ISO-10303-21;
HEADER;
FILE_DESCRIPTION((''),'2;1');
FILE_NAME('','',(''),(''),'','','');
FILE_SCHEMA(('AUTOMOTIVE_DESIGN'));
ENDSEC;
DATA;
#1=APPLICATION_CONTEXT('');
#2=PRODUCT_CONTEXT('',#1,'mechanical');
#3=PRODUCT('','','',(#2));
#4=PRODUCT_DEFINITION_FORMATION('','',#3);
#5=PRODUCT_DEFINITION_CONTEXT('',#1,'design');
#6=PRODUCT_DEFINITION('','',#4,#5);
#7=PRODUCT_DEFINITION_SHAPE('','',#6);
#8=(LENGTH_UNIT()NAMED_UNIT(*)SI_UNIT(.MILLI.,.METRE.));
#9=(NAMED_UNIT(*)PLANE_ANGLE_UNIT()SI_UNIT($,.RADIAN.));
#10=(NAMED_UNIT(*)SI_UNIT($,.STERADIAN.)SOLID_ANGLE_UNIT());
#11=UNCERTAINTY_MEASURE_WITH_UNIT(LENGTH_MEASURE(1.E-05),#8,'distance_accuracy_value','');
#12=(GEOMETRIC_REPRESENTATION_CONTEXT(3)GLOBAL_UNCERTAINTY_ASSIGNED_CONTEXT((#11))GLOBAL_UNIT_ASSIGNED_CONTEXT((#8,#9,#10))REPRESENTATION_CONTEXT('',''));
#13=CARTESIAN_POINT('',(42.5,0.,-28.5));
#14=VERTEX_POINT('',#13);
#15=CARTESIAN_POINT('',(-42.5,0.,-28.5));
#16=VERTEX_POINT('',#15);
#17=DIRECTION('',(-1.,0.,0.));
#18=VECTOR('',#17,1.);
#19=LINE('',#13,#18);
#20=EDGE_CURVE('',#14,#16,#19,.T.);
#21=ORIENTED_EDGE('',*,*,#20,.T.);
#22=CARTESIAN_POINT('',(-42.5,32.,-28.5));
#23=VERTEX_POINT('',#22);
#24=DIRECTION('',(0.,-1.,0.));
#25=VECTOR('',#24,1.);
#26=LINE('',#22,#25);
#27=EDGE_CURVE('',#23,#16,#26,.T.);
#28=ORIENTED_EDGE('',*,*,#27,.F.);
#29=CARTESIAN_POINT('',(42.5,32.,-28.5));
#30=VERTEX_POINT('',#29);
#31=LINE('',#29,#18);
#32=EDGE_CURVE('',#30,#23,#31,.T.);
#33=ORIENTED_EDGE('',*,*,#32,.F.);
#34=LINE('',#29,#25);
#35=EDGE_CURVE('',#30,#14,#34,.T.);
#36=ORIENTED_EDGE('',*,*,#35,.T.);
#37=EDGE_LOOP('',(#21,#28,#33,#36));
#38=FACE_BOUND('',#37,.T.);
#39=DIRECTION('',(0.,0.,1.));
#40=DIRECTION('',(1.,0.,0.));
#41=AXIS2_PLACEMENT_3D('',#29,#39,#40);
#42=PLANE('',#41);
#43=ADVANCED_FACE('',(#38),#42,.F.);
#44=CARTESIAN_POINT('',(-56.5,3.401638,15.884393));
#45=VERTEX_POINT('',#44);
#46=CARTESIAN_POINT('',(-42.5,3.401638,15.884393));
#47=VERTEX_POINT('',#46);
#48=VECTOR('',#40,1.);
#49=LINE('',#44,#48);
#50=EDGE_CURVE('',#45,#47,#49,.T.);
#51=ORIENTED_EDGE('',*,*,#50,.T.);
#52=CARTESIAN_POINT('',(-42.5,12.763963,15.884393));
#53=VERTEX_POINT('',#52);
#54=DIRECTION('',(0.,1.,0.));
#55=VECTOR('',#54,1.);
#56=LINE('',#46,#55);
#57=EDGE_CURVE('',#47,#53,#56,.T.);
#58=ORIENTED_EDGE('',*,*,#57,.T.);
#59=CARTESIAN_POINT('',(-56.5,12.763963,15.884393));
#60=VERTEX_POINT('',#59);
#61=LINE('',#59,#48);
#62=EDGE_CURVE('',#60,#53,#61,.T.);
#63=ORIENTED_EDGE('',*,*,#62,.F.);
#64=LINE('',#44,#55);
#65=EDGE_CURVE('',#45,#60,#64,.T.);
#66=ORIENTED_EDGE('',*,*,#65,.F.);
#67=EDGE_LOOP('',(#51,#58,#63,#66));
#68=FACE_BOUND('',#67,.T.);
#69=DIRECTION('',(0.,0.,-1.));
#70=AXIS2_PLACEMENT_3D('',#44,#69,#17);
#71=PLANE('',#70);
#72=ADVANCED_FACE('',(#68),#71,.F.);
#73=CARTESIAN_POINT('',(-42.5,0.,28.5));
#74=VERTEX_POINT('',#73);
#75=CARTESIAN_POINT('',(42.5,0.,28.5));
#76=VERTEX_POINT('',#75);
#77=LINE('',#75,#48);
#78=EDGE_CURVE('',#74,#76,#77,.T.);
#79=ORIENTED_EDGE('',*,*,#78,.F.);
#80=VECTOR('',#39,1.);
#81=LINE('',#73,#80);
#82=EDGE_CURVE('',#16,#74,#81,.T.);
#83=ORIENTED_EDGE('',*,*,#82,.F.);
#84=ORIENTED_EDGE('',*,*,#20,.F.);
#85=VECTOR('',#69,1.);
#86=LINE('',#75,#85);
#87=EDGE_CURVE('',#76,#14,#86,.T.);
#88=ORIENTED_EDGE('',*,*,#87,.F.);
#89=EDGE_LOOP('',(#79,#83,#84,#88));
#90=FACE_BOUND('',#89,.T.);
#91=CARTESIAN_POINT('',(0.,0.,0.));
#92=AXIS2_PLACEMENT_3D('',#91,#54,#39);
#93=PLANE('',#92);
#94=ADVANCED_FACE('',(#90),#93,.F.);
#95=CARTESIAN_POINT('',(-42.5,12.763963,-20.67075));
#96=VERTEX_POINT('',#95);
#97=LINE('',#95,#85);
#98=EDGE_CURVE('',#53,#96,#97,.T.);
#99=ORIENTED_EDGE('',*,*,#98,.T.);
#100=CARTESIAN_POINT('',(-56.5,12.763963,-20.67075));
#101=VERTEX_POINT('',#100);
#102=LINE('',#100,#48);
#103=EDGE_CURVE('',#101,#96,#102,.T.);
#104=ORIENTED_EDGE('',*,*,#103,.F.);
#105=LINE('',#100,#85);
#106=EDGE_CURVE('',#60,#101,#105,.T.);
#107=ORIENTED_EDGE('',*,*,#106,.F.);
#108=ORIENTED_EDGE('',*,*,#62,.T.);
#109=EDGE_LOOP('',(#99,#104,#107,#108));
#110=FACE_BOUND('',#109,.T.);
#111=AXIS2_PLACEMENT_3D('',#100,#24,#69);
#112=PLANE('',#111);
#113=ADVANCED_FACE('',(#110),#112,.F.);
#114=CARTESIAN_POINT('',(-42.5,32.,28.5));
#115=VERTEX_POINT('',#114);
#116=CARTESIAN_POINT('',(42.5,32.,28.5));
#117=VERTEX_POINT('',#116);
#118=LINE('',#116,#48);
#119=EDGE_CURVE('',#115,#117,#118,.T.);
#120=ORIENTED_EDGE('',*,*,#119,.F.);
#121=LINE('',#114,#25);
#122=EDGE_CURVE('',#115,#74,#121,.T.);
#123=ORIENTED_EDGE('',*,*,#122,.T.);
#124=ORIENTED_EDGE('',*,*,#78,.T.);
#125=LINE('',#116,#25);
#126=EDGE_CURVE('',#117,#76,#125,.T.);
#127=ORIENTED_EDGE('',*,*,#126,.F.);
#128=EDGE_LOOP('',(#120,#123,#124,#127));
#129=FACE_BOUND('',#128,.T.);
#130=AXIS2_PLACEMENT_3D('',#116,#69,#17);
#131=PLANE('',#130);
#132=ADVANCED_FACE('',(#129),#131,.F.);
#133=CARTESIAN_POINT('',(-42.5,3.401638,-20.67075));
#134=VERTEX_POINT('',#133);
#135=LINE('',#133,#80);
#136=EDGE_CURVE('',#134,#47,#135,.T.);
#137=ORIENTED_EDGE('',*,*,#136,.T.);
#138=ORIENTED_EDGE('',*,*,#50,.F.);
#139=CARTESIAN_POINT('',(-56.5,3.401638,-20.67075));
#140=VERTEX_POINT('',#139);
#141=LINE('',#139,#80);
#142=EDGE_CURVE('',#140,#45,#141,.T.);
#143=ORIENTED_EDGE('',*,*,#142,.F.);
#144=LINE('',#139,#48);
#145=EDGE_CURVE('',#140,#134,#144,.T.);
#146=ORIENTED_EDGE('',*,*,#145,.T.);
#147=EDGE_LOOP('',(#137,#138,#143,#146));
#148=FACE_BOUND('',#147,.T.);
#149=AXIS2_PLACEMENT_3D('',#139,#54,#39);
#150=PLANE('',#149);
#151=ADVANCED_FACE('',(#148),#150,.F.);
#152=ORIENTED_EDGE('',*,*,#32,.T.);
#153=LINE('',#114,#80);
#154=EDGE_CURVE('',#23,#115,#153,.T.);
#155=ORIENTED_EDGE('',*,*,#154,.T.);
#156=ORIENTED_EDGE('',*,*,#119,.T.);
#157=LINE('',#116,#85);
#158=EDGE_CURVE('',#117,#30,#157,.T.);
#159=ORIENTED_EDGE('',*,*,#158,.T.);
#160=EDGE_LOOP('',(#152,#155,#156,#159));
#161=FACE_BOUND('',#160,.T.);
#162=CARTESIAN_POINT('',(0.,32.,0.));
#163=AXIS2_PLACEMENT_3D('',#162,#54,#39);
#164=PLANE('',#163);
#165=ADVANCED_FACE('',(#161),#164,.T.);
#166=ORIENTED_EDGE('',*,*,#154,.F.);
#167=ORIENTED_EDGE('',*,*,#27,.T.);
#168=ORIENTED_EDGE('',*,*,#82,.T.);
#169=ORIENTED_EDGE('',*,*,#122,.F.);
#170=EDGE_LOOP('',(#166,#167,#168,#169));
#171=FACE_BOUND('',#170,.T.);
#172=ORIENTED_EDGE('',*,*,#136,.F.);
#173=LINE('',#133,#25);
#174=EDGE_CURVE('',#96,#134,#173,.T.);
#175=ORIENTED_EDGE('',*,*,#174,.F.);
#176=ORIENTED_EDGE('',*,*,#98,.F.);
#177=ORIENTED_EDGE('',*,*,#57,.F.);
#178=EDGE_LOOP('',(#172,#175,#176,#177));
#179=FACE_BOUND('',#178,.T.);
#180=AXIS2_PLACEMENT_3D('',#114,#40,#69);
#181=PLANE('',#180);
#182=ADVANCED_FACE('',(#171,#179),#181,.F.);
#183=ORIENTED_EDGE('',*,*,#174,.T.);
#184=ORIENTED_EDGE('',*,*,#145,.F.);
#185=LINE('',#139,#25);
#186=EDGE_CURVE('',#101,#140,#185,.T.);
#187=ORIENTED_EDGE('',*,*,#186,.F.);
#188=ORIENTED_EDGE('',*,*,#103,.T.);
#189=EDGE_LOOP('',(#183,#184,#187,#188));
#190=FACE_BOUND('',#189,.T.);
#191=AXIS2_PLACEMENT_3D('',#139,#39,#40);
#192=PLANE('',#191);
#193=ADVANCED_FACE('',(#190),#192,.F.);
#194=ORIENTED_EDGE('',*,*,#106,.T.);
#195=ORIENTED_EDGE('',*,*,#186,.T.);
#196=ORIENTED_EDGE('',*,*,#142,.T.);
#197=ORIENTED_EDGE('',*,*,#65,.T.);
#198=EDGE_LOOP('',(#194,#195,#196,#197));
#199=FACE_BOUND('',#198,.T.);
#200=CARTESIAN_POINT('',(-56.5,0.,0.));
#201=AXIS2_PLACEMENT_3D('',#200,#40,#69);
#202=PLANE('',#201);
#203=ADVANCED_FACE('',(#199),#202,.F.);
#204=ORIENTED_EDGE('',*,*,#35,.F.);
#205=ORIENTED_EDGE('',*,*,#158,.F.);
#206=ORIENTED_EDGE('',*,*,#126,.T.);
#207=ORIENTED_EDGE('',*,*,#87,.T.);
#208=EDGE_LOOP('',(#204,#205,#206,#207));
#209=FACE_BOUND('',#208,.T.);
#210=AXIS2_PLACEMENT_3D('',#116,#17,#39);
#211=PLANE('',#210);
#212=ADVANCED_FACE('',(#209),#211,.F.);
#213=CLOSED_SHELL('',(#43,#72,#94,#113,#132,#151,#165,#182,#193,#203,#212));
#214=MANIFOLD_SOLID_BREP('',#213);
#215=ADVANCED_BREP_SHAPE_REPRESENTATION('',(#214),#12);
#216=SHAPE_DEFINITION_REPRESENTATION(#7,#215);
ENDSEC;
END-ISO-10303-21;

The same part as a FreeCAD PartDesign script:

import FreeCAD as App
import Part
import Sketcher
Q = App.Units.Quantity

doc = App.newDocument("Part")
body = doc.addObject("PartDesign::Body", "Body")

# Sketch on XZ plane
sketch1 = body.newObject("Sketcher::SketchObject", "Sketch")
sketch1.AttachmentSupport = (doc.getObject("XZ_Plane"), [""])
sketch1.MapMode = "FlatFace"
sketch1.addGeometry(Part.LineSegment(App.Vector(-42, -28, 0), App.Vector(-42, 28, 0)), False)
sketch1.addGeometry(Part.LineSegment(App.Vector(-42, 28, 0), App.Vector(42, 28, 0)), False)
sketch1.addGeometry(Part.LineSegment(App.Vector(42, 28, 0), App.Vector(42, -28, 0)), False)
sketch1.addGeometry(Part.LineSegment(App.Vector(42, -28, 0), App.Vector(-42, -28, 0)), False)
sketch1.addConstraint(Sketcher.Constraint("Coincident", 0, 2, 1, 1))
sketch1.addConstraint(Sketcher.Constraint("Coincident", 1, 2, 2, 1))
sketch1.addConstraint(Sketcher.Constraint("Coincident", 2, 2, 3, 1))
sketch1.addConstraint(Sketcher.Constraint("Coincident", 3, 2, 0, 1))
sketch1.addConstraint(Sketcher.Constraint("Vertical", 0))
sketch1.addConstraint(Sketcher.Constraint("Horizontal", 1))
sketch1.addConstraint(Sketcher.Constraint("Vertical", 2))
sketch1.addConstraint(Sketcher.Constraint("Horizontal", 3))
sketch1.addConstraint(Sketcher.Constraint("Symmetric", 0, 2, 2, 2, -1, 1))
sketch1.addConstraint(Sketcher.Constraint("DistanceX", 1, 1, 1, 2, Q("85 mm")))
sketch1.addConstraint(Sketcher.Constraint("DistanceY", 0, 1, 0, 2, Q("57 mm")))
pad1 = body.newObject("PartDesign::Pad", "Pad")
pad1.Profile = sketch1
pad1.Length = 32
pad1.Reversed = True

# Sketch on YZ plane
sketch2 = body.newObject("Sketcher::SketchObject", "Sketch001")
sketch2.AttachmentSupport = (doc.getObject("YZ_Plane"), [""])
sketch2.MapMode = "FlatFace"
sketch2.AttachmentOffset = App.Placement(App.Vector(0, 0, -42.5), App.Rotation())
sketch2.addGeometry(Part.LineSegment(App.Vector(13, -21, 0), App.Vector(3, -21, 0)), False)
sketch2.addGeometry(Part.LineSegment(App.Vector(3, -21, 0), App.Vector(3, 16, 0)), False)
sketch2.addGeometry(Part.LineSegment(App.Vector(3, 16, 0), App.Vector(13, 16, 0)), False)
sketch2.addGeometry(Part.LineSegment(App.Vector(13, 16, 0), App.Vector(13, -21, 0)), False)
sketch2.addConstraint(Sketcher.Constraint("Coincident", 0, 2, 1, 1))
sketch2.addConstraint(Sketcher.Constraint("Coincident", 1, 2, 2, 1))
sketch2.addConstraint(Sketcher.Constraint("Coincident", 2, 2, 3, 1))
sketch2.addConstraint(Sketcher.Constraint("Coincident", 3, 2, 0, 1))
sketch2.addConstraint(Sketcher.Constraint("Horizontal", 0))
sketch2.addConstraint(Sketcher.Constraint("Vertical", 1))
sketch2.addConstraint(Sketcher.Constraint("Horizontal", 2))
sketch2.addConstraint(Sketcher.Constraint("Vertical", 3))
sketch2.addConstraint(Sketcher.Constraint("DistanceX", 0, 2, 0, 1, Q("9.362325 mm")))
sketch2.addConstraint(Sketcher.Constraint("DistanceY", 1, 1, 1, 2, Q("36.555143 mm")))
sketch2.addConstraint(Sketcher.Constraint("DistanceX", -1, 1, 0, 2, Q("3.401638 mm")))
sketch2.addConstraint(Sketcher.Constraint("DistanceY", 0, 2, -1, 1, Q("20.67075 mm")))
pad2 = body.newObject("PartDesign::Pad", "Pad001")
pad2.Profile = sketch2
pad2.Length = 14
pad2.Reversed = True

doc.recompute()
